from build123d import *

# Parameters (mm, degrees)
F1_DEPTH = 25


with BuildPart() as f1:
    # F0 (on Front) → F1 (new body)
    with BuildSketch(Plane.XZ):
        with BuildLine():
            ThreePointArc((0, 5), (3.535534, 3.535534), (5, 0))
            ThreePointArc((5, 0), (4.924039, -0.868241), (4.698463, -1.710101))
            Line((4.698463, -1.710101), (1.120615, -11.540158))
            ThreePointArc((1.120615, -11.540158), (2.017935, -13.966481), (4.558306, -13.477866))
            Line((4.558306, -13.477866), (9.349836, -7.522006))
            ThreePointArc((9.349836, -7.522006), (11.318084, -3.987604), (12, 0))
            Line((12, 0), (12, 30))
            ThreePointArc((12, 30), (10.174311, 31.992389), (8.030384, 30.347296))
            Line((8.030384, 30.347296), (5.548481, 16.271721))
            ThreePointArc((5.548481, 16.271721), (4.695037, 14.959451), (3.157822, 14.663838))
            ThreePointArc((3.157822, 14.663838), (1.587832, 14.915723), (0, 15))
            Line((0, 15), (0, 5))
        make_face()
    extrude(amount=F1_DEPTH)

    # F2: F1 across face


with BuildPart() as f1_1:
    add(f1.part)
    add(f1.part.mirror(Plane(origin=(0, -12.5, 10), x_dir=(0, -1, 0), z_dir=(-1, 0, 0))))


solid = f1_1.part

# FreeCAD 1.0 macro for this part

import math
import FreeCAD as App
import Part
import Sketcher

V = App.Vector
Q = App.Units.Quantity

doc = App.newDocument("Part")
params = doc.addObject("Spreadsheet::Sheet", "Params")
for row, (alias, value) in enumerate([
    ("sketch1_radius", "5 mm"),
    ("sketch1_radius2", "2 mm"),
    ("sketch1_height", "30 mm"),
    ("sketch1_height2", "10 mm"),
    ("pad1_length", "25 mm"),
], start=1):
    params.set(f"A{row}", alias)
    params.set(f"B{row}", "=" + value)
    params.setAlias(f"B{row}", alias)

body = doc.addObject("PartDesign::Body", "Body")

# Sketch on XZ plane
sketch1 = doc.addObject("Sketcher::SketchObject", "Sketch")
body.addObject(sketch1)
sketch1.AttachmentSupport = (doc.XZ_Plane, [""])
sketch1.MapMode = "FlatFace"
sketch1.addGeometry([
    Part.ArcOfCircle(Part.Circle(V(0, 0, 0), V(0, 0, 1), 5), math.radians(0), math.radians(90)),  # 0
    Part.ArcOfCircle(Part.Circle(V(0, 0, 0), V(0, 0, 1), 5), math.radians(-20), math.radians(0)),  # 1
    Part.LineSegment(V(4.7, -1.7, 0), V(1.1, -11.5, 0)),  # 2
    Part.ArcOfCircle(Part.Circle(V(3, -12.2, 0), V(0, 0, 1), 2), math.radians(160), math.radians(321)),  # 3
    Part.LineSegment(V(4.6, -13.5, 0), V(9.3, -7.5, 0)),  # 4
    Part.ArcOfCircle(Part.Circle(V(0, 0, 0), V(0, 0, 1), 12), math.radians(-39), math.radians(0)),  # 5
    Part.LineSegment(V(12, 0, 0), V(12, 30, 0)),  # 6
    Part.ArcOfCircle(Part.Circle(V(10, 30, 0), V(0, 0, 1), 2), math.radians(0), math.radians(170)),  # 7
    Part.LineSegment(V(8, 30.3, 0), V(5.5, 16.3, 0)),  # 8
    Part.ArcOfCircle(Part.Circle(V(3.6, 16.6, 0), V(0, 0, 1), 2), math.radians(-102), math.radians(-10)),  # 9
    Part.ArcOfCircle(Part.Circle(V(0, 0, 0), V(0, 0, 1), 15), math.radians(77.85), math.radians(90)),  # 10
    Part.LineSegment(V(0, 15, 0), V(0, 5, 0)),  # 11
], False)
sketch1.addConstraint([
    Sketcher.Constraint("Tangent", 0, 1, 1, 2),
    Sketcher.Constraint("Tangent", 1, 1, 2, 1),
    Sketcher.Constraint("Tangent", 2, 2, 3, 1),
    Sketcher.Constraint("Tangent", 3, 2, 4, 1),
    Sketcher.Constraint("Tangent", 4, 2, 5, 1),
    Sketcher.Constraint("Tangent", 5, 2, 6, 1),
    Sketcher.Constraint("Tangent", 6, 2, 7, 1),
    Sketcher.Constraint("Tangent", 7, 2, 8, 1),
    Sketcher.Constraint("Tangent", 8, 2, 9, 2),
    Sketcher.Constraint("Tangent", 9, 1, 10, 1),
    Sketcher.Constraint("Coincident", 10, 2, 11, 1),
    Sketcher.Constraint("Coincident", 11, 2, 0, 2),
    Sketcher.Constraint("Vertical", 6),
    Sketcher.Constraint("Vertical", 11),
    Sketcher.Constraint("Coincident", 0, 3, -1, 1),
    Sketcher.Constraint("Coincident", 5, 3, -1, 1),
    Sketcher.Constraint("Equal", 3, 7),
    Sketcher.Constraint("Equal", 7, 9),
    Sketcher.Constraint("PointOnObject", 0, 1, -1),
    Sketcher.Constraint("PointOnObject", 10, 2, -2),
    Sketcher.Constraint("Vertical", 5, 3, 10, 3),
    Sketcher.Constraint("Radius", 0, Q("5 mm")),
    Sketcher.Constraint("Radius", 3, Q("2 mm")),
    Sketcher.Constraint("DistanceY", 6, 1, 6, 2, Q("30 mm")),
    Sketcher.Constraint("DistanceY", 11, 2, 11, 1, Q("10 mm")),
    Sketcher.Constraint("Angle", 2, Q("-109.999999 deg")),
    Sketcher.Constraint("Angle", 8, Q("-99.999997 deg")),
    Sketcher.Constraint("DistanceX", -1, 1, 3, 3, Q("3 mm")),
    Sketcher.Constraint("DistanceX", -1, 1, 7, 3, Q("10 mm")),
    Sketcher.Constraint("Radius", 1, Q("4.999984 mm")),
    Sketcher.Constraint("Radius", 10, Q("14.999936 mm")),
])
sketch1.setExpression("Constraints[21]", "Params.sketch1_radius")
sketch1.setExpression("Constraints[22]", "Params.sketch1_radius2")
sketch1.setExpression("Constraints[23]", "Params.sketch1_height")
sketch1.setExpression("Constraints[24]", "Params.sketch1_height2")
pad1 = doc.addObject("PartDesign::Pad", "Pad")
body.addObject(pad1)
pad1.Profile = sketch1
pad1.setExpression("Length", "Params.pad1_length")
body2 = doc.addObject("PartDesign::Body", "Body001")
doc.recompute()

body2.BaseFeature = body
doc.recompute()

mirroring = doc.addObject("Part::Mirroring", "Mirroring")
mirroring.Source = body
mirroring.Base = V(0, -12.5, 10)
mirroring.Normal = V(-1, 0, 0)
body3 = doc.addObject("PartDesign::Body", "Body002")
body3.BaseFeature = mirroring
boolean = doc.addObject("PartDesign::Boolean", "Boolean")
body2.addObject(boolean)
boolean.Type = "Fuse"
boolean.addObjects([body3])
doc.recompute()
mirroring.Visibility = False

doc.recompute()
